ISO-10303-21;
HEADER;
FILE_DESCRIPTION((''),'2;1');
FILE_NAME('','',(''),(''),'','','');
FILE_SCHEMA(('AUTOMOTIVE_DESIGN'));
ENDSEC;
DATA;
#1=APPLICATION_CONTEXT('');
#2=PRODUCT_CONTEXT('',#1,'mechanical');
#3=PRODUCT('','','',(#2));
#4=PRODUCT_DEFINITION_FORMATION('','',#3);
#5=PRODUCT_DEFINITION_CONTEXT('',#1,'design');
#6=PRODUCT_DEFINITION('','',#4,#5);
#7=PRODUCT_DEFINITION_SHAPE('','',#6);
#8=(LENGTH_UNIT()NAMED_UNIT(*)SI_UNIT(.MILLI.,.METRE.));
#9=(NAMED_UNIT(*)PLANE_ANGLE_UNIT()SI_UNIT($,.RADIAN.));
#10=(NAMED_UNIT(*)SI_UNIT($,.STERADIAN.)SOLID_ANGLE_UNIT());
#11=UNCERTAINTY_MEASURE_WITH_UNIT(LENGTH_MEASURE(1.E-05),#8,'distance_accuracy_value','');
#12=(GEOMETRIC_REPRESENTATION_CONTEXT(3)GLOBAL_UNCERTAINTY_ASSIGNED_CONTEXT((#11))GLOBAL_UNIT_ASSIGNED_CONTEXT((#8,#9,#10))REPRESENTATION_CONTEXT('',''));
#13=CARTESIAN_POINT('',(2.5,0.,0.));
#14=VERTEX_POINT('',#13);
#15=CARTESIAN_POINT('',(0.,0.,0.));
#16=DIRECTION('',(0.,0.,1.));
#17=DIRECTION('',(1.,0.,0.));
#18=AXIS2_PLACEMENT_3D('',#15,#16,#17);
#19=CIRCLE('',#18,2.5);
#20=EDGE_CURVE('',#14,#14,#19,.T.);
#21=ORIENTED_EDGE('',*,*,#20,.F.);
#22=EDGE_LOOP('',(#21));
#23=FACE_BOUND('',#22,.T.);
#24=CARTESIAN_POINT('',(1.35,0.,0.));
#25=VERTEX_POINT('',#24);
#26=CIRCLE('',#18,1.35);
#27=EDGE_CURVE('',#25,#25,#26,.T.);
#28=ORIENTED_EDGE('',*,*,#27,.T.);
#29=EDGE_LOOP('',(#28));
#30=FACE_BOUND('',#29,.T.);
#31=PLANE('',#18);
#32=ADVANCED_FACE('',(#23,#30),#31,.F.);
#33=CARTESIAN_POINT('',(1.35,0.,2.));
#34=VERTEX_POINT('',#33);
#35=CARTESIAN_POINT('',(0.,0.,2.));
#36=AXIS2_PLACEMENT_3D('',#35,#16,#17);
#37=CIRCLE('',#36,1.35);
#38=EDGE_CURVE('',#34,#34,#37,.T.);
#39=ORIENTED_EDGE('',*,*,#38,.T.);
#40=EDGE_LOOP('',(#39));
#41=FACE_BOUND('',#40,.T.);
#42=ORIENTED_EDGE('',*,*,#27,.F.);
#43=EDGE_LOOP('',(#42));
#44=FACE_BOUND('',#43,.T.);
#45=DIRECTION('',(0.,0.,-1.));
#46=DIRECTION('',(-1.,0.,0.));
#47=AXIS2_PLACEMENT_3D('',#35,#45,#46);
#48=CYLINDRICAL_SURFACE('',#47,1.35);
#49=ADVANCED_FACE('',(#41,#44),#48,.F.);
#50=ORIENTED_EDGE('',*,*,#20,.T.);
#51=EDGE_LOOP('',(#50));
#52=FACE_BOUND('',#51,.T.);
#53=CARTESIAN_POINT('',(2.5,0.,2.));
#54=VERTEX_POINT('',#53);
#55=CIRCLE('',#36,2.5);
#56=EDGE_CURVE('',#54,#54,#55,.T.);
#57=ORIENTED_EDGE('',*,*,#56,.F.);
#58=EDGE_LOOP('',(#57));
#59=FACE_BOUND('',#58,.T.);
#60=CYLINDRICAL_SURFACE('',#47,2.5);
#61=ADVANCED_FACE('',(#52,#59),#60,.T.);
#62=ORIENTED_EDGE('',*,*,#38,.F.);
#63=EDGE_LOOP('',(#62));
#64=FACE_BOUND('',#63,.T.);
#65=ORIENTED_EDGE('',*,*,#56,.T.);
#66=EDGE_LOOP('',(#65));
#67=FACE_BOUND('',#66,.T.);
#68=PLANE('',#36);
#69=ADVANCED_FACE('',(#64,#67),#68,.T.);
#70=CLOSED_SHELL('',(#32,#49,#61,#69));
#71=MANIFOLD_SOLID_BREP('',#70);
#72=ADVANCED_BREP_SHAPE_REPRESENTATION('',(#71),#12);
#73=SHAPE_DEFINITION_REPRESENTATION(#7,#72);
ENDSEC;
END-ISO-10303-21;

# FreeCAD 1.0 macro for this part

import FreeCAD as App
import Part
import Sketcher
from FreeCAD import Vector

doc = App.newDocument("Part")
params = doc.addObject("Spreadsheet::Sheet", "Params")
for row, (alias, value) in enumerate([
    ("sketch1_diameter", "5 mm"),
    ("sketch1_diameter2", "2.7 mm"),
    ("pad1_length", "2 mm"),
], start=1):
    params.set(f"A{row}", alias)
    params.set(f"B{row}", "=" + value)
    params.setAlias(f"B{row}", alias)

body = doc.addObject("PartDesign::Body", "Body")

# Sketch on XY plane
sketch1 = body.newObject("Sketcher::SketchObject", "Sketch")
sketch1.AttachmentSupport = (doc.getObject("XY_Plane"), [""])
sketch1.MapMode = "FlatFace"
sketch1.addGeometry(Part.Circle(Vector(0, 0, 0), Vector(0, 0, 1), 2.5), False)
sketch1.addGeometry(Part.Circle(Vector(0, 0, 0), Vector(0, 0, 1), 1.35), False)
sketch1.addConstraint(Sketcher.Constraint("Coincident", 0, 3, -1, 1))
sketch1.addConstraint(Sketcher.Constraint("Coincident", 1, 3, -1, 1))
sketch1.addConstraint(Sketcher.Constraint("Diameter", 0, 5.0))
sketch1.addConstraint(Sketcher.Constraint("Diameter", 1, 2.7))
sketch1.setExpression("Constraints[2]", "Params.sketch1_diameter")
sketch1.setExpression("Constraints[3]", "Params.sketch1_diameter2")
pad1 = body.newObject("PartDesign::Pad", "Pad")
pad1.Profile = sketch1
pad1.setExpression("Length", "Params.pad1_length")

doc.recompute()
